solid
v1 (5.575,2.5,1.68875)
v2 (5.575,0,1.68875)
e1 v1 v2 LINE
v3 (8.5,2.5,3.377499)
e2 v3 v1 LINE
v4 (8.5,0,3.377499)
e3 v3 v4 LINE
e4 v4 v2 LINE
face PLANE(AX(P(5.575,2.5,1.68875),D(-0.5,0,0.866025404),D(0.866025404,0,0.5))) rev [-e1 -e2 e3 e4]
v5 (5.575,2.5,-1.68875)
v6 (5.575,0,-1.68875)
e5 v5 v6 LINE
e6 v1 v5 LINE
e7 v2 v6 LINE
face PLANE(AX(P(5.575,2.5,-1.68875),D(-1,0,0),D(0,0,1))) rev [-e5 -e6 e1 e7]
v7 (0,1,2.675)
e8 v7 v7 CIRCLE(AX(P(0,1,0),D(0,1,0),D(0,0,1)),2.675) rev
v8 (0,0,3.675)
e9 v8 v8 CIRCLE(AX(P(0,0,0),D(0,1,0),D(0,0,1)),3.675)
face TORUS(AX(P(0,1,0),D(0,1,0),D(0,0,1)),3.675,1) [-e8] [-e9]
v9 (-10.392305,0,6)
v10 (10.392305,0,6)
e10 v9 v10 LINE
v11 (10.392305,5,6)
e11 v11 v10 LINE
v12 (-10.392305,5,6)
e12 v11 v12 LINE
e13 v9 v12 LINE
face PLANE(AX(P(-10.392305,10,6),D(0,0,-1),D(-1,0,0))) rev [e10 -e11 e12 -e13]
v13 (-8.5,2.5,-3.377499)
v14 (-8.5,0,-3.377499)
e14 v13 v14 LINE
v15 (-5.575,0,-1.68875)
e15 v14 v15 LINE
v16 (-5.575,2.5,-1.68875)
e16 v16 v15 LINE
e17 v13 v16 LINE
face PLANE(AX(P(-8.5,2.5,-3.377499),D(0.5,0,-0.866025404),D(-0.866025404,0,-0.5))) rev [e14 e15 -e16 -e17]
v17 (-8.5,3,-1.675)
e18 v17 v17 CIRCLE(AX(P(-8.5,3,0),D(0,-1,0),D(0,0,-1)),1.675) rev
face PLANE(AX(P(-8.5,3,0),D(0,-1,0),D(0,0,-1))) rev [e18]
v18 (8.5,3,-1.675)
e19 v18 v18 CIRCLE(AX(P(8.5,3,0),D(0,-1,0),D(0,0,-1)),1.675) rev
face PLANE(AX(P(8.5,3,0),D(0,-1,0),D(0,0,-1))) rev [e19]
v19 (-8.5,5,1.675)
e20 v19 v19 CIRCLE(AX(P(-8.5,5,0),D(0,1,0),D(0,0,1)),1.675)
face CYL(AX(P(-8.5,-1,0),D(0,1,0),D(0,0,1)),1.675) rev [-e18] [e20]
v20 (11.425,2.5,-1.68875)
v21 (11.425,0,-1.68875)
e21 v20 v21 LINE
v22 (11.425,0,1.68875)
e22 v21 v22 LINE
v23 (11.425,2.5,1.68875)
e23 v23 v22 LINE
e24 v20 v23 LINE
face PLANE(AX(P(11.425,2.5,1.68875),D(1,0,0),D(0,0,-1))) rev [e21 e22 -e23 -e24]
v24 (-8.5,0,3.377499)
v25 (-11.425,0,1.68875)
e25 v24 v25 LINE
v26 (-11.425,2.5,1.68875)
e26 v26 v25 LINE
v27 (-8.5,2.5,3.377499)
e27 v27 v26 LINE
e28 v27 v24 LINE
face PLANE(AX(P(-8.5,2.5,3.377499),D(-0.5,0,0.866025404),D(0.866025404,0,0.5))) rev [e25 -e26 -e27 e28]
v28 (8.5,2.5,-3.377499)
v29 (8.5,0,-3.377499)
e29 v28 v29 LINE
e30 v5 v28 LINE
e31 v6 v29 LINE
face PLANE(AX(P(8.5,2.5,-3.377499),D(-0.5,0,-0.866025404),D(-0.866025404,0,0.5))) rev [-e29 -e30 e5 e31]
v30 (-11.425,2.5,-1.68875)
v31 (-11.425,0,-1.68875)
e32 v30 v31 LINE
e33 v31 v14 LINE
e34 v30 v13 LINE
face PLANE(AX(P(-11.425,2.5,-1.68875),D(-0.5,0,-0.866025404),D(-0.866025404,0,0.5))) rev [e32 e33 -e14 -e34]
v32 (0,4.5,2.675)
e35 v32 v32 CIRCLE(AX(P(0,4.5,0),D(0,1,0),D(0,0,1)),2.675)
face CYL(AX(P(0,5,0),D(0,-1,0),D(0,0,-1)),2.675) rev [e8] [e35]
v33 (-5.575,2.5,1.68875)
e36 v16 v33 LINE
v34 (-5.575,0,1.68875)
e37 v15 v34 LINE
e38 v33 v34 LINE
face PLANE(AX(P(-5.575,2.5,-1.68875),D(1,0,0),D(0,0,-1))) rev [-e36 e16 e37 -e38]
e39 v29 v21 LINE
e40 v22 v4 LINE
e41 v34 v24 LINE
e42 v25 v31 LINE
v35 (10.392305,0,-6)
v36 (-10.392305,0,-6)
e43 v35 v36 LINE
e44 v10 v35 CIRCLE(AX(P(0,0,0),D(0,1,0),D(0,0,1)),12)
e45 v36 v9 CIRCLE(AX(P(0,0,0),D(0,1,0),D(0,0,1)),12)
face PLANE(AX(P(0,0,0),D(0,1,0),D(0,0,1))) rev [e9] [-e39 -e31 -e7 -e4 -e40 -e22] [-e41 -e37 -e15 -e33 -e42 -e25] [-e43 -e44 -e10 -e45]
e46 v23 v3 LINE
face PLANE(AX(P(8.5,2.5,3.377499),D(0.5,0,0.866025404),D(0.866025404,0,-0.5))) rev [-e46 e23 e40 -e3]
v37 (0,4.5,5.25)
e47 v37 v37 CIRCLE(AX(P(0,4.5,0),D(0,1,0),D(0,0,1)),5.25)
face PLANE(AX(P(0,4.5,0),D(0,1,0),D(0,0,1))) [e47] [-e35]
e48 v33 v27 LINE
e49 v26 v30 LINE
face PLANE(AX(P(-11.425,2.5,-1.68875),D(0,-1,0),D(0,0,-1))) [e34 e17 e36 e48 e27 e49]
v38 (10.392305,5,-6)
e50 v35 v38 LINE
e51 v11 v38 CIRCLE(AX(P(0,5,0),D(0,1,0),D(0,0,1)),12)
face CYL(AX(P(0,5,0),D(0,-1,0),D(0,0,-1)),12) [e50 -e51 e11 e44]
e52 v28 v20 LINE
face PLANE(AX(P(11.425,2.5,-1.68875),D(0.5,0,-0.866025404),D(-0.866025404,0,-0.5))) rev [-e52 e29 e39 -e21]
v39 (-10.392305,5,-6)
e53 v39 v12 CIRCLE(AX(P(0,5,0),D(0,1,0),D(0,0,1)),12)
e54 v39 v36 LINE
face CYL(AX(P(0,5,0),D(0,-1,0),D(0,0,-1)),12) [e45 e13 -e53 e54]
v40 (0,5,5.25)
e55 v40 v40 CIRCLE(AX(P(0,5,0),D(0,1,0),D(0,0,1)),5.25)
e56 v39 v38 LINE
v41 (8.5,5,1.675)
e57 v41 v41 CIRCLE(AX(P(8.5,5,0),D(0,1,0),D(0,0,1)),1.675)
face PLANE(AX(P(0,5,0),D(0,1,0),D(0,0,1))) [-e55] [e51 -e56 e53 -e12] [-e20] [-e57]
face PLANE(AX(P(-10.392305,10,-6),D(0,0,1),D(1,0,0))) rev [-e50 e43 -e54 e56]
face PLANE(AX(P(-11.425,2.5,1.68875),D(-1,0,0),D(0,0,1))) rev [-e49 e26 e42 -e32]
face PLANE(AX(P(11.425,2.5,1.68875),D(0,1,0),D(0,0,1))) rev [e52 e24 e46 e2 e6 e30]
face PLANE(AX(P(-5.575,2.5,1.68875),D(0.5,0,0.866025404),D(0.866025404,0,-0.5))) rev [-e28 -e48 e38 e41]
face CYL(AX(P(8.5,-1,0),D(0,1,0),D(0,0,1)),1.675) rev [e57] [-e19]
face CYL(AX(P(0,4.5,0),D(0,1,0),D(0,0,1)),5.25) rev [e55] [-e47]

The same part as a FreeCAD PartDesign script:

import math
import FreeCAD as App
import Part
import Sketcher

V = App.Vector
Q = App.Units.Quantity


def edges_at(feature, points):
    """Names of the edges that pass closest to the given points."""
    edges = feature.Shape.Edges
    near = lambda p: min(range(len(edges)), key=lambda i: edges[i].distToShape(Part.Vertex(*p))[0])
    return sorted({f"Edge{near(p) + 1}" for p in points})

doc = App.newDocument("Part")
body = doc.addObject("PartDesign::Body", "Body")

# Sketch on XZ plane
sketch1 = doc.addObject("Sketcher::SketchObject", "Sketch")
body.addObject(sketch1)
sketch1.AttachmentSupport = (doc.XZ_Plane, [""])
sketch1.MapMode = "FlatFace"
sketch1.addGeometry([
    Part.Circle(V(0, 0, 0), V(0, 0, 1), 12),
    Part.Circle(V(0, 0, 0), V(0, 0, 1), 2.7),
], False)
sketch1.addConstraint([
    Sketcher.Constraint("Coincident", 0, 3, -1, 1),
    Sketcher.Constraint("Coincident", 1, 3, -1, 1),
    Sketcher.Constraint("Diameter", 0, Q("24 mm")),
    Sketcher.Constraint("Diameter", 1, Q("5.35 mm")),
])
pad1 = doc.addObject("PartDesign::Pad", "Pad")
body.addObject(pad1)
pad1.Profile = sketch1
pad1.Length = 5
pad1.Reversed = True

# Sketch on XZ plane
sketch2 = doc.addObject("Sketcher::SketchObject", "Sketch001")
body.addObject(sketch2)
sketch2.AttachmentSupport = (doc.XZ_Plane, [""])
sketch2.MapMode = "FlatFace"
sketch2.AttachmentOffset = App.Placement(V(0, 0, -5), App.Rotation())
sketch2.addGeometry([
    Part.Circle(V(-8.5, 0, 0), V(0, 0, 1), 1.7),
    Part.Circle(V(8.5, 0, 0), V(0, 0, 1), 1.7),
], False)
sketch2.addConstraint([
    Sketcher.Constraint("Equal", 0, 1),
    Sketcher.Constraint("Symmetric", 0, 3, 1, 3, -1, 1),
    Sketcher.Constraint("PointOnObject", 0, 3, -1),
    Sketcher.Constraint("Diameter", 0, Q("3.35 mm")),
    Sketcher.Constraint("DistanceX", 0, 3, 1, 3, Q("17 mm")),
])
pocket1 = doc.addObject("PartDesign::Pocket", "Pocket")
body.addObject(pocket1)
pocket1.Profile = sketch2
pocket1.Length = 6
pocket1.Reversed = True

# Sketch on XZ plane
sketch3 = doc.addObject("Sketcher::SketchObject", "Sketch002")
body.addObject(sketch3)
sketch3.AttachmentSupport = (doc.XZ_Plane, [""])
sketch3.MapMode = "FlatFace"
sketch3.addGeometry([
    Part.LineSegment(V(-11.4, -1.7, 0), V(-8.5, -3.4, 0)),  # 0
    Part.LineSegment(V(-8.5, -3.4, 0), V(-5.6, -1.7, 0)),  # 1
    Part.LineSegment(V(-5.6, -1.7, 0), V(-5.6, 1.7, 0)),  # 2
    Part.LineSegment(V(-5.6, 1.7, 0), V(-8.5, 3.4, 0)),  # 3
    Part.LineSegment(V(-8.5, 3.4, 0), V(-11.4, 1.7, 0)),  # 4
    Part.LineSegment(V(-11.4, 1.7, 0), V(-11.4, -1.7, 0)),  # 5
    Part.LineSegment(V(11.4, -1.7, 0), V(11.4, 1.7, 0)),  # 6
    Part.LineSegment(V(11.4, 1.7, 0), V(8.5, 3.4, 0)),  # 7
    Part.LineSegment(V(8.5, 3.4, 0), V(5.6, 1.7, 0)),  # 8
    Part.LineSegment(V(5.6, 1.7, 0), V(5.6, -1.7, 0)),  # 9
    Part.LineSegment(V(5.6, -1.7, 0), V(8.5, -3.4, 0)),  # 10
    Part.LineSegment(V(8.5, -3.4, 0), V(11.4, -1.7, 0)),  # 11
], False)
sketch3.addConstraint([
    Sketcher.Constraint("Coincident", 0, 2, 1, 1),
    Sketcher.Constraint("Coincident", 1, 2, 2, 1),
    Sketcher.Constraint("Coincident", 2, 2, 3, 1),
    Sketcher.Constraint("Coincident", 3, 2, 4, 1),
    Sketcher.Constraint("Coincident", 4, 2, 5, 1),
    Sketcher.Constraint("Coincident", 5, 2, 0, 1),
    Sketcher.Constraint("Coincident", 6, 2, 7, 1),
    Sketcher.Constraint("Coincident", 7, 2, 8, 1),
    Sketcher.Constraint("Coincident", 8, 2, 9, 1),
    Sketcher.Constraint("Coincident", 9, 2, 10, 1),
    Sketcher.Constraint("Coincident", 10, 2, 11, 1),
    Sketcher.Constraint("Coincident", 11, 2, 6, 1),
    Sketcher.Constraint("Vertical", 2),
    Sketcher.Constraint("Vertical", 5),
    Sketcher.Constraint("Vertical", 6),
    Sketcher.Constraint("Vertical", 9),
    Sketcher.Constraint("Symmetric", 5, 2, 6, 2, -1, 1),
    Sketcher.Constraint("Symmetric", 0, 2, 7, 2, -1, 1),
    Sketcher.Constraint("Symmetric", 1, 2, 8, 2, -1, 1),
    Sketcher.Constraint("Symmetric", 3, 2, 10, 2, -1, 1),
    Sketcher.Constraint("Symmetric", 3, 2, 7, 2, -2),
    Sketcher.Constraint("Parallel", 0, 3),
    Sketcher.Constraint("Parallel", 1, 4),
    Sketcher.Constraint("Parallel", 7, 10),
    Sketcher.Constraint("Parallel", 8, 11),
    Sketcher.Constraint("Horizontal", 2, 2, 4, 2),
    Sketcher.Constraint("Horizontal", 1, 2, 5, 2),
    Sketcher.Constraint("Angle", 0, Q("-30 deg")),
    Sketcher.Constraint("DistanceX", 2, 2, 6, 2, Q("17 mm")),
    Sketcher.Constraint("DistanceX", 4, 2, 2, 2, Q("5.85 mm")),
    Sketcher.Constraint("DistanceY", 2, 1, 2, 2, Q("3.377499 mm")),
])
pocket2 = doc.addObject("PartDesign::Pocket", "Pocket001")
body.addObject(pocket2)
pocket2.Profile = sketch3
pocket2.Length = 2.5

# Sketch on XZ plane
sketch4 = doc.addObject("Sketcher::SketchObject", "Sketch003")
body.addObject(sketch4)
sketch4.AttachmentSupport = (doc.XZ_Plane, [""])
sketch4.MapMode = "FlatFace"
sketch4.addGeometry([
    Part.LineSegment(V(-10, 6, 0), V(10, 6, 0)),
    Part.ArcOfCircle(Part.Circle(V(0, 0, 0), V(0, 0, 1), 12), math.radians(30), math.radians(150)),
    Part.LineSegment(V(10, -6, 0), V(-10, -6, 0)),
    Part.ArcOfCircle(Part.Circle(V(0, 0, 0), V(0, 0, 1), 12), math.radians(-150), math.radians(-30)),
], False)
sketch4.addConstraint([
    Sketcher.Constraint("Coincident", 0, 1, 1, 2),
    Sketcher.Constraint("Coincident", 1, 1, 0, 2),
    Sketcher.Constraint("Coincident", 2, 1, 3, 2),
    Sketcher.Constraint("Coincident", 3, 1, 2, 2),
    Sketcher.Constraint("Horizontal", 0),
    Sketcher.Constraint("Horizontal", 2),
    Sketcher.Constraint("Coincident", 1, 3, -1, 1),
    Sketcher.Constraint("Coincident", 3, 3, -1, 1),
    Sketcher.Constraint("Equal", 1, 3),
    Sketcher.Constraint("Vertical", 1, 1, 2, 1),
    Sketcher.Constraint("Radius", 1, Q("12 mm")),
    Sketcher.Constraint("DistanceY", -1, 1, 0, 1, Q("6 mm")),
])
pocket3 = doc.addObject("PartDesign::Pocket", "Pocket002")
body.addObject(pocket3)
pocket3.Profile = sketch4
pocket3.Length = 10
doc.recompute()

fillet = doc.addObject("PartDesign::Fillet", "Fillet")
body.addObject(fillet)
fillet.Base = (pocket3, edges_at(pocket3, [(-2.675, 0, 0)]))
fillet.Radius = 1

# Sketch on XZ plane
sketch5 = doc.addObject("Sketcher::SketchObject", "Sketch004")
body.addObject(sketch5)
sketch5.AttachmentSupport = (doc.XZ_Plane, [""])
sketch5.MapMode = "FlatFace"
sketch5.AttachmentOffset = App.Placement(V(0, 0, -5), App.Rotation())
sketch5.addGeometry(Part.Circle(V(0, 0, 0), V(0, 0, 1), 5), False)
sketch5.addConstraint([
    Sketcher.Constraint("Coincident", 0, 3, -1, 1),
    Sketcher.Constraint("Diameter", 0, Q("10.5 mm")),
])
pocket4 = doc.addObject("PartDesign::Pocket", "Pocket003")
body.addObject(pocket4)
pocket4.Profile = sketch5
pocket4.Length = 0.5
pocket4.Reversed = True

# Sketch on XZ plane
sketch6 = doc.addObject("Sketcher::SketchObject", "Sketch005")
body.addObject(sketch6)
sketch6.AttachmentSupport = (doc.XZ_Plane, [""])
sketch6.MapMode = "FlatFace"
sketch6.AttachmentOffset = App.Placement(V(0, 0, -2.5), App.Rotation())
sketch6.addGeometry([
    Part.Circle(V(8.5, 0, 0), V(0, 0, 1), 1.7),
    Part.Circle(V(-8.5, 0, 0), V(0, 0, 1), 1.7),
], False)
sketch6.addConstraint([
    Sketcher.Constraint("Equal", 0, 1),
    Sketcher.Constraint("Symmetric", 0, 3, 1, 3, -1, 1),
    Sketcher.Constraint("PointOnObject", 0, 3, -1),
    Sketcher.Constraint("Diameter", 0, Q("3.35 mm")),
    Sketcher.Constraint("DistanceX", 1, 3, 0, 3, Q("17 mm")),
])
pad2 = doc.addObject("PartDesign::Pad", "Pad001")
body.addObject(pad2)
pad2.Profile = sketch6
pad2.Length = 0.5
pad2.Reversed = True

doc.recompute()
